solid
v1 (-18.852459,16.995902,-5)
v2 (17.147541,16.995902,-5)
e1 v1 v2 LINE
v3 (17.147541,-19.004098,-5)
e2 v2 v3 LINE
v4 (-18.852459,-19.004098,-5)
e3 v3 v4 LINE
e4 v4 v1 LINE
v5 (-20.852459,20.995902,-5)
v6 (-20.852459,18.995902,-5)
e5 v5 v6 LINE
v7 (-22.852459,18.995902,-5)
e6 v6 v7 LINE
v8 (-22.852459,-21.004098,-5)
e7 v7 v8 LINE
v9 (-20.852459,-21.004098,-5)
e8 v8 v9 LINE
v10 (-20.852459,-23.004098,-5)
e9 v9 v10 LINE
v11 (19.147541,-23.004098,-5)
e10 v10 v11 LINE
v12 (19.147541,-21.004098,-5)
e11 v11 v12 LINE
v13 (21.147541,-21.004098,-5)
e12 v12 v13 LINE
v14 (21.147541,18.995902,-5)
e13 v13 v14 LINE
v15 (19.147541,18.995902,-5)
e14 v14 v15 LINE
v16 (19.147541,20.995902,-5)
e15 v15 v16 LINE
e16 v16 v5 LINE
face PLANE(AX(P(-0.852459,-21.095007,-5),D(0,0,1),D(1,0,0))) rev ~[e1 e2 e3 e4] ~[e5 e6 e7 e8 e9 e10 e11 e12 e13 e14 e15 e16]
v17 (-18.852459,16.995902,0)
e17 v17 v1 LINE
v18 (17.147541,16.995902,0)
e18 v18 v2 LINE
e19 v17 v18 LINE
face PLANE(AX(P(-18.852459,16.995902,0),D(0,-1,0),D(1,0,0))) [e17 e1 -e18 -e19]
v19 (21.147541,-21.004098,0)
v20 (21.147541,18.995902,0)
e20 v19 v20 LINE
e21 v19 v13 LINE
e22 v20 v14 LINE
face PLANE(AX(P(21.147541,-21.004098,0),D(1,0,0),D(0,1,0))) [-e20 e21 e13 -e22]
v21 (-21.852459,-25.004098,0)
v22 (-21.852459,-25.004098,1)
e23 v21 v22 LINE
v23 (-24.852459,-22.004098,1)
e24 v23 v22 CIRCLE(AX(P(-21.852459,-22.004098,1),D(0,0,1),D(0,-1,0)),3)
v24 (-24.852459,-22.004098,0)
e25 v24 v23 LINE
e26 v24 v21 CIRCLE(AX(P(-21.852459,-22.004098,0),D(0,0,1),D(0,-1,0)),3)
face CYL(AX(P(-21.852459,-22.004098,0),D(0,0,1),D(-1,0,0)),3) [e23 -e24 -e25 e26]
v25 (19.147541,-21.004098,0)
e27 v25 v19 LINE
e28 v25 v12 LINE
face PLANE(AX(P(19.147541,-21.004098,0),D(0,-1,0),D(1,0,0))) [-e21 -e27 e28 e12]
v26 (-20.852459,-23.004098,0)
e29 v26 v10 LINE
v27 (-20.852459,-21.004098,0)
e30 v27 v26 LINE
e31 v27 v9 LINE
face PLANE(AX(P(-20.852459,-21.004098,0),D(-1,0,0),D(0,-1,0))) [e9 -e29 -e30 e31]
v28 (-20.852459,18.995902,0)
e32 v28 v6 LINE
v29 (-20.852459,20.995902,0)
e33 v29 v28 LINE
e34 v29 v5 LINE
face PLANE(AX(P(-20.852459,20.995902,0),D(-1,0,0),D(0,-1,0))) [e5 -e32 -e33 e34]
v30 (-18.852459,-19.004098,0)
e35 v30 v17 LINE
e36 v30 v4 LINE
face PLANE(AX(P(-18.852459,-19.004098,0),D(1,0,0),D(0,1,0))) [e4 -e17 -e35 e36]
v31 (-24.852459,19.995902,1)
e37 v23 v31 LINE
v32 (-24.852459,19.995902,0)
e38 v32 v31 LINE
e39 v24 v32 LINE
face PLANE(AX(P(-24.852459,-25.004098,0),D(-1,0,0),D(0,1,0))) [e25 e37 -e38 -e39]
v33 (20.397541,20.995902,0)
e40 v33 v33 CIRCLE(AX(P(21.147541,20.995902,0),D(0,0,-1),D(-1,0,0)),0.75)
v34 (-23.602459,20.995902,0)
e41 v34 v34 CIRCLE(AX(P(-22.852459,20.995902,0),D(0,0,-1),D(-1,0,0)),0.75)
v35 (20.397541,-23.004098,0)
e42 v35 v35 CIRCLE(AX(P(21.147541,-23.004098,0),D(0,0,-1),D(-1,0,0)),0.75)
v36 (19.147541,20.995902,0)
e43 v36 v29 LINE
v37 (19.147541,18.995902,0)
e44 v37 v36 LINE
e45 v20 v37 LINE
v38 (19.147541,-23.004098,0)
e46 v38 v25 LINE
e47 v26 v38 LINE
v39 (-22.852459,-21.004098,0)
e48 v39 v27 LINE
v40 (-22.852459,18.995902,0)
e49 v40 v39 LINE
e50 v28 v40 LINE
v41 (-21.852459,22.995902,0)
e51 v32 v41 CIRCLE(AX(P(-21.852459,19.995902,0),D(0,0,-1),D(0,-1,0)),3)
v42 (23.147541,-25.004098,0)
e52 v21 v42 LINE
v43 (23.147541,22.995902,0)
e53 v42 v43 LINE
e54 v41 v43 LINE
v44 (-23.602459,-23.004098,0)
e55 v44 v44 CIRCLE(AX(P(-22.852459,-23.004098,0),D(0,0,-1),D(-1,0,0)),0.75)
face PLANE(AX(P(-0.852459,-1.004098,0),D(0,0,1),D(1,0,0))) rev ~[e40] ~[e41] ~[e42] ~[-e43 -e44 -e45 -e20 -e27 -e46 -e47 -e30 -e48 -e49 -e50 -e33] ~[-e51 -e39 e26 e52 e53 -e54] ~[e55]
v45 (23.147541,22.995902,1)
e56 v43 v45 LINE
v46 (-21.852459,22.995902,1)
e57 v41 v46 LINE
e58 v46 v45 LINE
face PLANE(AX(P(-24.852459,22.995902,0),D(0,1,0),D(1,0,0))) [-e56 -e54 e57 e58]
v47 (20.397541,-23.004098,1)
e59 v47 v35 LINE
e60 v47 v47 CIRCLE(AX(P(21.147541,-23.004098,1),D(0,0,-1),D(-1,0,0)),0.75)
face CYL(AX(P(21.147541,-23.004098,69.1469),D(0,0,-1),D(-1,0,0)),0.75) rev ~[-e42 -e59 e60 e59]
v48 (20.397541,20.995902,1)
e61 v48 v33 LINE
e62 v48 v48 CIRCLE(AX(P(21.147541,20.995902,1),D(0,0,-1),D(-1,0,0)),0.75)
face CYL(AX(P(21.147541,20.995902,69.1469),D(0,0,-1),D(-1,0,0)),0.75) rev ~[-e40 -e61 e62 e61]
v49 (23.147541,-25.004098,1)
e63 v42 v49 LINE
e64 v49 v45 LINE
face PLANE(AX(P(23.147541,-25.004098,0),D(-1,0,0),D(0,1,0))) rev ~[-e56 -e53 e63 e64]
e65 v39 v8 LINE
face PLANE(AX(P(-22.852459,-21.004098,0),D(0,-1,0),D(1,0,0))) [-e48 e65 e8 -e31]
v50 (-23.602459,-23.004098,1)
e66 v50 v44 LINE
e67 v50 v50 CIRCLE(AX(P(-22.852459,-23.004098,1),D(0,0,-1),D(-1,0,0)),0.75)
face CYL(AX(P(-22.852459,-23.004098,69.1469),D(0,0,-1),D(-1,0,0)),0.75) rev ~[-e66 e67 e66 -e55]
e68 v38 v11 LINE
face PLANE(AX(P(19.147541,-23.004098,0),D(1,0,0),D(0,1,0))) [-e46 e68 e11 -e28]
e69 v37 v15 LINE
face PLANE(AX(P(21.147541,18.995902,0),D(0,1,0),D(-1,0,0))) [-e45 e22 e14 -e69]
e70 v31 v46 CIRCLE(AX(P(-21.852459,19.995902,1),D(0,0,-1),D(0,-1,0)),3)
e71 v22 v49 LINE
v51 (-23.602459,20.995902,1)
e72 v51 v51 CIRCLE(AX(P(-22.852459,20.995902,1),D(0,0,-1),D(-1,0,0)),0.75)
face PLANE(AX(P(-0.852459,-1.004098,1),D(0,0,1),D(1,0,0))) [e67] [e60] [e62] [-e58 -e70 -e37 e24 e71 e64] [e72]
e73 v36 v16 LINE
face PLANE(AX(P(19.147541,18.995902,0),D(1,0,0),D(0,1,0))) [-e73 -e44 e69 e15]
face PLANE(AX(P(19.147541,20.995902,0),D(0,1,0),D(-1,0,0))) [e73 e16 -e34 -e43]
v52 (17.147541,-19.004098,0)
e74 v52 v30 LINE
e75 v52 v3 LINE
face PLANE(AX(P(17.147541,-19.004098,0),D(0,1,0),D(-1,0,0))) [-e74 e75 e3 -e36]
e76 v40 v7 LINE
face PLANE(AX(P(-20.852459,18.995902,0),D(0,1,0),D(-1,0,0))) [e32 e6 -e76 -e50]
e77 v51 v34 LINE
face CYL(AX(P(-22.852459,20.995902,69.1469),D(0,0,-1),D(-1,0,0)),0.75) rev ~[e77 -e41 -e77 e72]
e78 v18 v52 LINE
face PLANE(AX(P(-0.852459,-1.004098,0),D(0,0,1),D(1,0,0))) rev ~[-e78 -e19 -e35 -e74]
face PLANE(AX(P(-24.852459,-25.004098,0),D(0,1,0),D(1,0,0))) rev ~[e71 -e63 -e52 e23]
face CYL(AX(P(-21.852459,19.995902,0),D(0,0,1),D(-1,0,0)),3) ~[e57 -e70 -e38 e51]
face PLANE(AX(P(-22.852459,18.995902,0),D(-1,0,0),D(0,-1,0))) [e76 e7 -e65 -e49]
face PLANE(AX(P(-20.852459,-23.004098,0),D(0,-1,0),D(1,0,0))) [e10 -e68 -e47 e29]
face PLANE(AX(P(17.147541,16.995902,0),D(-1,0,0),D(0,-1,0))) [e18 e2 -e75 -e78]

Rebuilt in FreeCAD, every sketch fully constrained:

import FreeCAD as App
import Part
import Sketcher
from FreeCAD import Vector


def edges_at(feature, points):
    """Names of the edges that pass closest to the given points."""
    edges = feature.Shape.Edges
    near = lambda p: min(range(len(edges)), key=lambda i: edges[i].distToShape(Part.Vertex(*p))[0])
    return sorted({f"Edge{near(p) + 1}" for p in points})


def add_polygon(sketch, points):
    """Adds a closed chain of lines whose ends are joined by coincident constraints."""
    first, n = sketch.GeometryCount, len(points)
    for a, b in zip(points, points[1:] + points[:1]):
        sketch.addGeometry(Part.LineSegment(App.Vector(*a, 0), App.Vector(*b, 0)), False)
    for i in range(n):
        sketch.addConstraint(Sketcher.Constraint("Coincident", first + i, 2, first + (i + 1) % n, 1))

doc = App.newDocument("Part")
body = doc.addObject("PartDesign::Body", "Body")

# Sketch on XY plane
sketch1 = doc.addObject("Sketcher::SketchObject", "Sketch")
body.addObject(sketch1)
sketch1.AttachmentSupport = (doc.XY_Plane, [""])
sketch1.MapMode = "FlatFace"
add_polygon(sketch1, [(-25, 23), (-25, -25), (23, -25), (23, 23)])  # lines 0-3
sketch1.addConstraint([
    Sketcher.Constraint("Vertical", 0),
    Sketcher.Constraint("Horizontal", 1),
    Sketcher.Constraint("Vertical", 2),
    Sketcher.Constraint("Horizontal", 3),
    Sketcher.Constraint("Equal", 3, 0),
    Sketcher.Constraint("DistanceX", 1, 1, 1, 2, 48.0),
    Sketcher.Constraint("DistanceY", 0, 2, -1, 1, 25.004098),
    Sketcher.Constraint("DistanceX", 0, 2, -1, 1, 24.852459),
])
pad1 = doc.addObject("PartDesign::Pad", "Pad")
body.addObject(pad1)
pad1.Profile = sketch1
pad1.Length = 1

# Sketch on XY plane
sketch2 = doc.addObject("Sketcher::SketchObject", "Sketch001")
body.addObject(sketch2)
sketch2.AttachmentSupport = (doc.XY_Plane, [""])
sketch2.MapMode = "FlatFace"
add_polygon(sketch2, [(21.1, 19), (19.1, 19), (19.1, 21), (-20.9, 21), (-20.9, 19), (-22.9, 19), (-22.9, -21), (-20.9, -21), (-20.9, -23), (19.1, -23), (19.1, -21), (21.1, -21)])  # lines 0-11
add_polygon(sketch2, [(-18.9, 17), (17.1, 17), (17.1, -19), (-18.9, -19)])  # lines 12-15
sketch2.addConstraint([
    Sketcher.Constraint("Horizontal", 0),
    Sketcher.Constraint("Vertical", 1),
    Sketcher.Constraint("Horizontal", 2),
    Sketcher.Constraint("Vertical", 3),
    Sketcher.Constraint("Horizontal", 4),
    Sketcher.Constraint("Vertical", 5),
    Sketcher.Constraint("Horizontal", 6),
    Sketcher.Constraint("Vertical", 7),
    Sketcher.Constraint("Horizontal", 8),
    Sketcher.Constraint("Vertical", 9),
    Sketcher.Constraint("Horizontal", 10),
    Sketcher.Constraint("Vertical", 11),
    Sketcher.Constraint("Horizontal", 12),
    Sketcher.Constraint("Vertical", 13),
    Sketcher.Constraint("Horizontal", 14),
    Sketcher.Constraint("Vertical", 15),
    Sketcher.Constraint("Horizontal", 0, 2, 3, 2),
    Sketcher.Constraint("Horizontal", 6, 2, 9, 2),
    Sketcher.Constraint("Vertical", 3, 2, 6, 2),
    Sketcher.Constraint("Vertical", 1, 2, 8, 2),
    Sketcher.Constraint("Equal", 0, 4),
    Sketcher.Constraint("Equal", 10, 1),
    Sketcher.Constraint("Equal", 8, 5),
    Sketcher.Constraint("Equal", 3, 7),
    Sketcher.Constraint("Equal", 14, 13),
    Sketcher.Constraint("DistanceX", 0, 2, 0, 1, 2.0),
    Sketcher.Constraint("DistanceX", 2, 2, 2, 1, 40.0),
    Sketcher.Constraint("DistanceX", 12, 1, 12, 2, 36.0),
    Sketcher.Constraint("DistanceX", 12, 2, 0, 2, 2.0),
    Sketcher.Constraint("DistanceY", 12, 2, 0, 2, 2.0),
    Sketcher.Constraint("DistanceY", -1, 1, 0, 2, 18.995902),
    Sketcher.Constraint("DistanceX", -1, 1, 0, 2, 19.147541),
])
pad2 = doc.addObject("PartDesign::Pad", "Pad001")
body.addObject(pad2)
pad2.Profile = sketch2
pad2.Length = 5
pad2.Reversed = True

# Sketch on XY plane
sketch3 = doc.addObject("Sketcher::SketchObject", "Sketch002")
body.addObject(sketch3)
sketch3.AttachmentSupport = (doc.XY_Plane, [""])
sketch3.MapMode = "FlatFace"
sketch3.AttachmentOffset = App.Placement(Vector(0, 0, 1), App.Rotation())
sketch3.addGeometry([
    Part.Circle(Vector(-22.9, 21, 0), Vector(0, 0, 1), 0.8),
    Part.Circle(Vector(-22.9, -23, 0), Vector(0, 0, 1), 0.8),
    Part.Circle(Vector(21.1, -23, 0), Vector(0, 0, 1), 0.8),
    Part.Circle(Vector(21.1, 21, 0), Vector(0, 0, 1), 0.8),
], False)
sketch3.addConstraint([
    Sketcher.Constraint("Equal", 0, 1),
    Sketcher.Constraint("Equal", 1, 2),
    Sketcher.Constraint("Equal", 2, 3),
    Sketcher.Constraint("Horizontal", 1, 3, 2, 3),
    Sketcher.Constraint("Horizontal", 0, 3, 3, 3),
    Sketcher.Constraint("Vertical", 0, 3, 1, 3),
    Sketcher.Constraint("Vertical", 2, 3, 3, 3),
    Sketcher.Constraint("Diameter", 0, 1.5),
    Sketcher.Constraint("DistanceY", 1, 3, 0, 3, 44.0),
    Sketcher.Constraint("DistanceX", 1, 3, 2, 3, 44.0),
    Sketcher.Constraint("DistanceY", -1, 1, 0, 3, 20.995902),
    Sketcher.Constraint("DistanceX", 0, 3, -1, 1, 22.852459),
])
doc.recompute()
hole = doc.addObject("PartDesign::Hole", "Hole")
body.addObject(hole)
hole.Profile = sketch3
hole.ThreadType = "None"
hole.Diameter = 1.5
hole.DepthType = "ThroughAll"
doc.recompute()

fillet = doc.addObject("PartDesign::Fillet", "Fillet")
body.addObject(fillet)
fillet.Base = (hole, edges_at(hole, [(-24.852, -25.004, 0.5), (-24.852, 22.996, 0.5)]))
fillet.Radius = 3

doc.recompute()
